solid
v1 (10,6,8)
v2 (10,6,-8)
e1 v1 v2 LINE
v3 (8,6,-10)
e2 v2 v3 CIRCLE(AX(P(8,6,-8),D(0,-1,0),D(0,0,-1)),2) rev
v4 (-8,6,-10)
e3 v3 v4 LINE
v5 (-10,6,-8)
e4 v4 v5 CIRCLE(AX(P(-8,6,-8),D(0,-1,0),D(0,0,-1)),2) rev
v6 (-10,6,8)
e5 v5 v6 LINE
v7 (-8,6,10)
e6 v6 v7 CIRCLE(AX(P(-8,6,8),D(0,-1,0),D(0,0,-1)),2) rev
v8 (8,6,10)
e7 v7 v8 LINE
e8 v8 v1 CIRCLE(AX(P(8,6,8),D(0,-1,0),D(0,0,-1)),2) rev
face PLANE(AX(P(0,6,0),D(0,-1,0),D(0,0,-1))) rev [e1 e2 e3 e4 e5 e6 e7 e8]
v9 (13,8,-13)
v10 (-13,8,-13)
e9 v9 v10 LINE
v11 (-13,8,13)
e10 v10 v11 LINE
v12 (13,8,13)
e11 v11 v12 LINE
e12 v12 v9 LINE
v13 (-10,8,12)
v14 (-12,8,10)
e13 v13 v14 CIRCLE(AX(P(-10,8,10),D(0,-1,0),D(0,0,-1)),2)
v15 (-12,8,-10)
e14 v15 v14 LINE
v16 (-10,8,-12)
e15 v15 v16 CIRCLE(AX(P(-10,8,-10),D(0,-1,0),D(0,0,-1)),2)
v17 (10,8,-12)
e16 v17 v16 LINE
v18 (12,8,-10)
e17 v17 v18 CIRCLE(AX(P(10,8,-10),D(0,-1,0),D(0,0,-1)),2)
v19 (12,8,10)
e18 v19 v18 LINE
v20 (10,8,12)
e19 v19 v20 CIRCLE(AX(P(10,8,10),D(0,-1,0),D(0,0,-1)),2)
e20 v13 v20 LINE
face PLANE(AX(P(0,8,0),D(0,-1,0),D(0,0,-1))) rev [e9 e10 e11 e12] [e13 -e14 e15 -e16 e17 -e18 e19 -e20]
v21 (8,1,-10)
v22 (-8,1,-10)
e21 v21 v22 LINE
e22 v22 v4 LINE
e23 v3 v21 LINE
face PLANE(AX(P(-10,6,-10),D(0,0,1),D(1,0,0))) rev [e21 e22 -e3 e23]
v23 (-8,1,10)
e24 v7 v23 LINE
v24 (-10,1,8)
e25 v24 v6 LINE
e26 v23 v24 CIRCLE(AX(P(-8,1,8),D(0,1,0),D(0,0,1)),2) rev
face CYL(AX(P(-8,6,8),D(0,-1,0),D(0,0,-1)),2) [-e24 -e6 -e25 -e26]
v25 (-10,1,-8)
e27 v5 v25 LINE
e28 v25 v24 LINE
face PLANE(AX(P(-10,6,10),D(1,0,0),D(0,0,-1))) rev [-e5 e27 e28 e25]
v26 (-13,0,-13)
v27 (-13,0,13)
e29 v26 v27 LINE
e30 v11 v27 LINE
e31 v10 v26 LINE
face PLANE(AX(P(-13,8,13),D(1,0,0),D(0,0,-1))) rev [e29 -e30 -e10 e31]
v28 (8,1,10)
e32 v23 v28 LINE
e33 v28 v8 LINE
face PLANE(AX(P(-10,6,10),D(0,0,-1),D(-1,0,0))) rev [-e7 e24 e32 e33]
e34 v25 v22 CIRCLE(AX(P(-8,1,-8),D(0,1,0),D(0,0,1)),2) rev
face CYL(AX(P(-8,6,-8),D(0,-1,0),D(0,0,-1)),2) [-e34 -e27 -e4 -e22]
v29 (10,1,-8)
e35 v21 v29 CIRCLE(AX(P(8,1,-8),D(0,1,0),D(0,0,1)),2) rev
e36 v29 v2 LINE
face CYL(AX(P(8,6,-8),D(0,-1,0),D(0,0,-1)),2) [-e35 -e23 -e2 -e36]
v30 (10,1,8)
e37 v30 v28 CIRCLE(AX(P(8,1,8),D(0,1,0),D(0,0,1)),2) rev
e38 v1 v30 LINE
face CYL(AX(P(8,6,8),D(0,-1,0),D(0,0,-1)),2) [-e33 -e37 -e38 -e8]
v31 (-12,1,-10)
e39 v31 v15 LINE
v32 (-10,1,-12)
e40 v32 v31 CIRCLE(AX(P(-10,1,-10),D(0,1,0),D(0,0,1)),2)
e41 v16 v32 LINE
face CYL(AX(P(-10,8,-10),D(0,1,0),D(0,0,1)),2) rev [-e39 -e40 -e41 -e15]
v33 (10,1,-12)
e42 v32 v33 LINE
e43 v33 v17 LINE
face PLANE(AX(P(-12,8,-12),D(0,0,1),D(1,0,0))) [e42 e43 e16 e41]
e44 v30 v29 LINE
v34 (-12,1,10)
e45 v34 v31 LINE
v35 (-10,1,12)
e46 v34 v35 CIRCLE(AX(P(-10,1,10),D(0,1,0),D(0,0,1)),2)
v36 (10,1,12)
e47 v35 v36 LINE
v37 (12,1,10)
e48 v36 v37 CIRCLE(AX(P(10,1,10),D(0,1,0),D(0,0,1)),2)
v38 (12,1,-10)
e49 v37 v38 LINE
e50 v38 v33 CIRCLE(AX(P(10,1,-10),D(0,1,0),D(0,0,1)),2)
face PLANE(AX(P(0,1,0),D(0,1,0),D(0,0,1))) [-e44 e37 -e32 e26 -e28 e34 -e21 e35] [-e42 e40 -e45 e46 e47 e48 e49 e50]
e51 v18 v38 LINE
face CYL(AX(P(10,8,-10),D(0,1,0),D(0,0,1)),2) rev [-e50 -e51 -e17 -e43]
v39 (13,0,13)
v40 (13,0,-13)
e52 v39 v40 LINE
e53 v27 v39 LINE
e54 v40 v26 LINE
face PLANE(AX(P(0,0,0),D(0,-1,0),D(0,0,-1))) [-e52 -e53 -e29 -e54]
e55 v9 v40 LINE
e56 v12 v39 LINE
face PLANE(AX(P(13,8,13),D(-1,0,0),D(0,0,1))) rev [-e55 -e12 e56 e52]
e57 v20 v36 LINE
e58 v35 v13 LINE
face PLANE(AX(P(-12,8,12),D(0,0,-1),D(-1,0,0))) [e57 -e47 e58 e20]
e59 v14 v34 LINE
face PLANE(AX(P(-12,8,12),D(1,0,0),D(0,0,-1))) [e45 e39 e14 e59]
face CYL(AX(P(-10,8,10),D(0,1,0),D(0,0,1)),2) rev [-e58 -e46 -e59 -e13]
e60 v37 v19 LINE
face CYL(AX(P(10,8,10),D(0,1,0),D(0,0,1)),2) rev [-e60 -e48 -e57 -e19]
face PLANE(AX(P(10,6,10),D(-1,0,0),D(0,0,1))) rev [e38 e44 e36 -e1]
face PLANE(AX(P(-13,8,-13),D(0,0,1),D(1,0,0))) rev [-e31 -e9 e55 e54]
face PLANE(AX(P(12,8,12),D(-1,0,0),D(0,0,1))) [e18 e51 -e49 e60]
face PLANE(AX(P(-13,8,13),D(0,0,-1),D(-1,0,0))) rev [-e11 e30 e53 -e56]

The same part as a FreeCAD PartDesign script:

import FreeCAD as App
import Part
import Sketcher
Q = App.Units.Quantity


def edges_at(feature, points):
    """Names of the edges that pass closest to the given points."""
    edges = feature.Shape.Edges
    near = lambda p: min(range(len(edges)), key=lambda i: edges[i].distToShape(Part.Vertex(*p))[0])
    return sorted({f"Edge{near(p) + 1}" for p in points})


def add_polygon(sketch, points):
    """Adds a closed chain of lines whose ends are joined by coincident constraints."""
    first, n = sketch.GeometryCount, len(points)
    for a, b in zip(points, points[1:] + points[:1]):
        sketch.addGeometry(Part.LineSegment(App.Vector(*a, 0), App.Vector(*b, 0)), False)
    for i in range(n):
        sketch.addConstraint(Sketcher.Constraint("Coincident", first + i, 2, first + (i + 1) % n, 1))

doc = App.newDocument("Part")
params = doc.addObject("Spreadsheet::Sheet", "Params")
for row, (alias, value) in enumerate([
    ("sketch1_width", "20 mm"),
    ("pad1_length", "6 mm"),
    ("sketch2_width", "24 mm"),
    ("pad2_length", "1 mm"),
    ("sketch3_width", "26 mm"),
    ("sketch3_width2", "24 mm"),
    ("pad3_length", "8 mm"),
    ("fillet_radius", "2 mm"),
    ("fillet2_radius", "2 mm"),
], start=1):
    params.set(f"A{row}", alias)
    params.set(f"B{row}", "=" + value)
    params.setAlias(f"B{row}", alias)

body = doc.addObject("PartDesign::Body", "Body")

sketch1 = body.newObject("Sketcher::SketchObject", "Sketch")
sketch1.AttachmentSupport = (doc.getObject("XZ_Plane"), [""])
sketch1.MapMode = "FlatFace"
add_polygon(sketch1, [(-10, -10), (-10, 10), (10, 10), (10, -10)])
sketch1.addConstraint([
    Sketcher.Constraint("Vertical", 0),
    Sketcher.Constraint("Horizontal", 1),
    Sketcher.Constraint("Vertical", 2),
    Sketcher.Constraint("Horizontal", 3),
    Sketcher.Constraint("Symmetric", 0, 2, 2, 2, -1, 1),
    Sketcher.Constraint("Equal", 3, 0),
    Sketcher.Constraint("DistanceX", 1, 1, 1, 2, Q("20 mm")),
])
sketch1.setExpression("Constraints[10]", "Params.sketch1_width")
pad1 = body.newObject("PartDesign::Pad", "Pad")
pad1.Profile = sketch1
pad1.setExpression("Length", "Params.pad1_length")
pad1.Reversed = True

sketch2 = body.newObject("Sketcher::SketchObject", "Sketch001")
sketch2.AttachmentSupport = (doc.getObject("XZ_Plane"), [""])
sketch2.MapMode = "FlatFace"
add_polygon(sketch2, [(-12, -12), (-12, 12), (12, 12), (12, -12)])
sketch2.addConstraint([
    Sketcher.Constraint("Vertical", 0),
    Sketcher.Constraint("Horizontal", 1),
    Sketcher.Constraint("Vertical", 2),
    Sketcher.Constraint("Horizontal", 3),
    Sketcher.Constraint("Symmetric", 0, 2, 2, 2, -1, 1),
    Sketcher.Constraint("Equal", 3, 0),
    Sketcher.Constraint("DistanceX", 1, 1, 1, 2, Q("24 mm")),
])
sketch2.setExpression("Constraints[10]", "Params.sketch2_width")
pad2 = body.newObject("PartDesign::Pad", "Pad001")
pad2.Profile = sketch2
pad2.setExpression("Length", "Params.pad2_length")
pad2.Reversed = True

sketch3 = body.newObject("Sketcher::SketchObject", "Sketch002")
sketch3.AttachmentSupport = (doc.getObject("XZ_Plane"), [""])
sketch3.MapMode = "FlatFace"
add_polygon(sketch3, [(-13, -13), (-13, 13), (13, 13), (13, -13)])
add_polygon(sketch3, [(12, 12), (-12, 12), (-12, -12), (12, -12)])
sketch3.addConstraint([
    Sketcher.Constraint("Vertical", 0),
    Sketcher.Constraint("Horizontal", 1),
    Sketcher.Constraint("Vertical", 2),
    Sketcher.Constraint("Horizontal", 3),
    Sketcher.Constraint("Horizontal", 4),
    Sketcher.Constraint("Vertical", 5),
    Sketcher.Constraint("Horizontal", 6),
    Sketcher.Constraint("Vertical", 7),
    Sketcher.Constraint("Symmetric", 0, 2, 2, 2, -1, 1),
    Sketcher.Constraint("Symmetric", 4, 2, 6, 2, -1, 1),
    Sketcher.Constraint("Equal", 3, 0),
    Sketcher.Constraint("Equal", 6, 5),
    Sketcher.Constraint("DistanceX", 1, 1, 1, 2, Q("26 mm")),
    Sketcher.Constraint("DistanceX", 4, 2, 4, 1, Q("24 mm")),
])
sketch3.setExpression("Constraints[20]", "Params.sketch3_width")
sketch3.setExpression("Constraints[21]", "Params.sketch3_width2")
pad3 = body.newObject("PartDesign::Pad", "Pad002")
pad3.Profile = sketch3
pad3.setExpression("Length", "Params.pad3_length")
pad3.Reversed = True
doc.recompute()

fillet = body.newObject("PartDesign::Fillet", "Fillet")
fillet.Base = (pad3, edges_at(pad3, [
    (10, 3.5, 10),
    (-10, 3.5, 10),
    (-10, 3.5, -10),
    (10, 3.5, -10),
]))
fillet.setExpression("Radius", "Params.fillet_radius")
doc.recompute()

fillet2 = body.newObject("PartDesign::Fillet", "Fillet001")
fillet2.Base = (fillet, edges_at(fillet, [
    (12, 4.5, -12),
    (-12, 4.5, -12),
    (-12, 4.5, 12),
    (12, 4.5, 12),
]))
fillet2.setExpression("Radius", "Params.fillet2_radius")

doc.recompute()
